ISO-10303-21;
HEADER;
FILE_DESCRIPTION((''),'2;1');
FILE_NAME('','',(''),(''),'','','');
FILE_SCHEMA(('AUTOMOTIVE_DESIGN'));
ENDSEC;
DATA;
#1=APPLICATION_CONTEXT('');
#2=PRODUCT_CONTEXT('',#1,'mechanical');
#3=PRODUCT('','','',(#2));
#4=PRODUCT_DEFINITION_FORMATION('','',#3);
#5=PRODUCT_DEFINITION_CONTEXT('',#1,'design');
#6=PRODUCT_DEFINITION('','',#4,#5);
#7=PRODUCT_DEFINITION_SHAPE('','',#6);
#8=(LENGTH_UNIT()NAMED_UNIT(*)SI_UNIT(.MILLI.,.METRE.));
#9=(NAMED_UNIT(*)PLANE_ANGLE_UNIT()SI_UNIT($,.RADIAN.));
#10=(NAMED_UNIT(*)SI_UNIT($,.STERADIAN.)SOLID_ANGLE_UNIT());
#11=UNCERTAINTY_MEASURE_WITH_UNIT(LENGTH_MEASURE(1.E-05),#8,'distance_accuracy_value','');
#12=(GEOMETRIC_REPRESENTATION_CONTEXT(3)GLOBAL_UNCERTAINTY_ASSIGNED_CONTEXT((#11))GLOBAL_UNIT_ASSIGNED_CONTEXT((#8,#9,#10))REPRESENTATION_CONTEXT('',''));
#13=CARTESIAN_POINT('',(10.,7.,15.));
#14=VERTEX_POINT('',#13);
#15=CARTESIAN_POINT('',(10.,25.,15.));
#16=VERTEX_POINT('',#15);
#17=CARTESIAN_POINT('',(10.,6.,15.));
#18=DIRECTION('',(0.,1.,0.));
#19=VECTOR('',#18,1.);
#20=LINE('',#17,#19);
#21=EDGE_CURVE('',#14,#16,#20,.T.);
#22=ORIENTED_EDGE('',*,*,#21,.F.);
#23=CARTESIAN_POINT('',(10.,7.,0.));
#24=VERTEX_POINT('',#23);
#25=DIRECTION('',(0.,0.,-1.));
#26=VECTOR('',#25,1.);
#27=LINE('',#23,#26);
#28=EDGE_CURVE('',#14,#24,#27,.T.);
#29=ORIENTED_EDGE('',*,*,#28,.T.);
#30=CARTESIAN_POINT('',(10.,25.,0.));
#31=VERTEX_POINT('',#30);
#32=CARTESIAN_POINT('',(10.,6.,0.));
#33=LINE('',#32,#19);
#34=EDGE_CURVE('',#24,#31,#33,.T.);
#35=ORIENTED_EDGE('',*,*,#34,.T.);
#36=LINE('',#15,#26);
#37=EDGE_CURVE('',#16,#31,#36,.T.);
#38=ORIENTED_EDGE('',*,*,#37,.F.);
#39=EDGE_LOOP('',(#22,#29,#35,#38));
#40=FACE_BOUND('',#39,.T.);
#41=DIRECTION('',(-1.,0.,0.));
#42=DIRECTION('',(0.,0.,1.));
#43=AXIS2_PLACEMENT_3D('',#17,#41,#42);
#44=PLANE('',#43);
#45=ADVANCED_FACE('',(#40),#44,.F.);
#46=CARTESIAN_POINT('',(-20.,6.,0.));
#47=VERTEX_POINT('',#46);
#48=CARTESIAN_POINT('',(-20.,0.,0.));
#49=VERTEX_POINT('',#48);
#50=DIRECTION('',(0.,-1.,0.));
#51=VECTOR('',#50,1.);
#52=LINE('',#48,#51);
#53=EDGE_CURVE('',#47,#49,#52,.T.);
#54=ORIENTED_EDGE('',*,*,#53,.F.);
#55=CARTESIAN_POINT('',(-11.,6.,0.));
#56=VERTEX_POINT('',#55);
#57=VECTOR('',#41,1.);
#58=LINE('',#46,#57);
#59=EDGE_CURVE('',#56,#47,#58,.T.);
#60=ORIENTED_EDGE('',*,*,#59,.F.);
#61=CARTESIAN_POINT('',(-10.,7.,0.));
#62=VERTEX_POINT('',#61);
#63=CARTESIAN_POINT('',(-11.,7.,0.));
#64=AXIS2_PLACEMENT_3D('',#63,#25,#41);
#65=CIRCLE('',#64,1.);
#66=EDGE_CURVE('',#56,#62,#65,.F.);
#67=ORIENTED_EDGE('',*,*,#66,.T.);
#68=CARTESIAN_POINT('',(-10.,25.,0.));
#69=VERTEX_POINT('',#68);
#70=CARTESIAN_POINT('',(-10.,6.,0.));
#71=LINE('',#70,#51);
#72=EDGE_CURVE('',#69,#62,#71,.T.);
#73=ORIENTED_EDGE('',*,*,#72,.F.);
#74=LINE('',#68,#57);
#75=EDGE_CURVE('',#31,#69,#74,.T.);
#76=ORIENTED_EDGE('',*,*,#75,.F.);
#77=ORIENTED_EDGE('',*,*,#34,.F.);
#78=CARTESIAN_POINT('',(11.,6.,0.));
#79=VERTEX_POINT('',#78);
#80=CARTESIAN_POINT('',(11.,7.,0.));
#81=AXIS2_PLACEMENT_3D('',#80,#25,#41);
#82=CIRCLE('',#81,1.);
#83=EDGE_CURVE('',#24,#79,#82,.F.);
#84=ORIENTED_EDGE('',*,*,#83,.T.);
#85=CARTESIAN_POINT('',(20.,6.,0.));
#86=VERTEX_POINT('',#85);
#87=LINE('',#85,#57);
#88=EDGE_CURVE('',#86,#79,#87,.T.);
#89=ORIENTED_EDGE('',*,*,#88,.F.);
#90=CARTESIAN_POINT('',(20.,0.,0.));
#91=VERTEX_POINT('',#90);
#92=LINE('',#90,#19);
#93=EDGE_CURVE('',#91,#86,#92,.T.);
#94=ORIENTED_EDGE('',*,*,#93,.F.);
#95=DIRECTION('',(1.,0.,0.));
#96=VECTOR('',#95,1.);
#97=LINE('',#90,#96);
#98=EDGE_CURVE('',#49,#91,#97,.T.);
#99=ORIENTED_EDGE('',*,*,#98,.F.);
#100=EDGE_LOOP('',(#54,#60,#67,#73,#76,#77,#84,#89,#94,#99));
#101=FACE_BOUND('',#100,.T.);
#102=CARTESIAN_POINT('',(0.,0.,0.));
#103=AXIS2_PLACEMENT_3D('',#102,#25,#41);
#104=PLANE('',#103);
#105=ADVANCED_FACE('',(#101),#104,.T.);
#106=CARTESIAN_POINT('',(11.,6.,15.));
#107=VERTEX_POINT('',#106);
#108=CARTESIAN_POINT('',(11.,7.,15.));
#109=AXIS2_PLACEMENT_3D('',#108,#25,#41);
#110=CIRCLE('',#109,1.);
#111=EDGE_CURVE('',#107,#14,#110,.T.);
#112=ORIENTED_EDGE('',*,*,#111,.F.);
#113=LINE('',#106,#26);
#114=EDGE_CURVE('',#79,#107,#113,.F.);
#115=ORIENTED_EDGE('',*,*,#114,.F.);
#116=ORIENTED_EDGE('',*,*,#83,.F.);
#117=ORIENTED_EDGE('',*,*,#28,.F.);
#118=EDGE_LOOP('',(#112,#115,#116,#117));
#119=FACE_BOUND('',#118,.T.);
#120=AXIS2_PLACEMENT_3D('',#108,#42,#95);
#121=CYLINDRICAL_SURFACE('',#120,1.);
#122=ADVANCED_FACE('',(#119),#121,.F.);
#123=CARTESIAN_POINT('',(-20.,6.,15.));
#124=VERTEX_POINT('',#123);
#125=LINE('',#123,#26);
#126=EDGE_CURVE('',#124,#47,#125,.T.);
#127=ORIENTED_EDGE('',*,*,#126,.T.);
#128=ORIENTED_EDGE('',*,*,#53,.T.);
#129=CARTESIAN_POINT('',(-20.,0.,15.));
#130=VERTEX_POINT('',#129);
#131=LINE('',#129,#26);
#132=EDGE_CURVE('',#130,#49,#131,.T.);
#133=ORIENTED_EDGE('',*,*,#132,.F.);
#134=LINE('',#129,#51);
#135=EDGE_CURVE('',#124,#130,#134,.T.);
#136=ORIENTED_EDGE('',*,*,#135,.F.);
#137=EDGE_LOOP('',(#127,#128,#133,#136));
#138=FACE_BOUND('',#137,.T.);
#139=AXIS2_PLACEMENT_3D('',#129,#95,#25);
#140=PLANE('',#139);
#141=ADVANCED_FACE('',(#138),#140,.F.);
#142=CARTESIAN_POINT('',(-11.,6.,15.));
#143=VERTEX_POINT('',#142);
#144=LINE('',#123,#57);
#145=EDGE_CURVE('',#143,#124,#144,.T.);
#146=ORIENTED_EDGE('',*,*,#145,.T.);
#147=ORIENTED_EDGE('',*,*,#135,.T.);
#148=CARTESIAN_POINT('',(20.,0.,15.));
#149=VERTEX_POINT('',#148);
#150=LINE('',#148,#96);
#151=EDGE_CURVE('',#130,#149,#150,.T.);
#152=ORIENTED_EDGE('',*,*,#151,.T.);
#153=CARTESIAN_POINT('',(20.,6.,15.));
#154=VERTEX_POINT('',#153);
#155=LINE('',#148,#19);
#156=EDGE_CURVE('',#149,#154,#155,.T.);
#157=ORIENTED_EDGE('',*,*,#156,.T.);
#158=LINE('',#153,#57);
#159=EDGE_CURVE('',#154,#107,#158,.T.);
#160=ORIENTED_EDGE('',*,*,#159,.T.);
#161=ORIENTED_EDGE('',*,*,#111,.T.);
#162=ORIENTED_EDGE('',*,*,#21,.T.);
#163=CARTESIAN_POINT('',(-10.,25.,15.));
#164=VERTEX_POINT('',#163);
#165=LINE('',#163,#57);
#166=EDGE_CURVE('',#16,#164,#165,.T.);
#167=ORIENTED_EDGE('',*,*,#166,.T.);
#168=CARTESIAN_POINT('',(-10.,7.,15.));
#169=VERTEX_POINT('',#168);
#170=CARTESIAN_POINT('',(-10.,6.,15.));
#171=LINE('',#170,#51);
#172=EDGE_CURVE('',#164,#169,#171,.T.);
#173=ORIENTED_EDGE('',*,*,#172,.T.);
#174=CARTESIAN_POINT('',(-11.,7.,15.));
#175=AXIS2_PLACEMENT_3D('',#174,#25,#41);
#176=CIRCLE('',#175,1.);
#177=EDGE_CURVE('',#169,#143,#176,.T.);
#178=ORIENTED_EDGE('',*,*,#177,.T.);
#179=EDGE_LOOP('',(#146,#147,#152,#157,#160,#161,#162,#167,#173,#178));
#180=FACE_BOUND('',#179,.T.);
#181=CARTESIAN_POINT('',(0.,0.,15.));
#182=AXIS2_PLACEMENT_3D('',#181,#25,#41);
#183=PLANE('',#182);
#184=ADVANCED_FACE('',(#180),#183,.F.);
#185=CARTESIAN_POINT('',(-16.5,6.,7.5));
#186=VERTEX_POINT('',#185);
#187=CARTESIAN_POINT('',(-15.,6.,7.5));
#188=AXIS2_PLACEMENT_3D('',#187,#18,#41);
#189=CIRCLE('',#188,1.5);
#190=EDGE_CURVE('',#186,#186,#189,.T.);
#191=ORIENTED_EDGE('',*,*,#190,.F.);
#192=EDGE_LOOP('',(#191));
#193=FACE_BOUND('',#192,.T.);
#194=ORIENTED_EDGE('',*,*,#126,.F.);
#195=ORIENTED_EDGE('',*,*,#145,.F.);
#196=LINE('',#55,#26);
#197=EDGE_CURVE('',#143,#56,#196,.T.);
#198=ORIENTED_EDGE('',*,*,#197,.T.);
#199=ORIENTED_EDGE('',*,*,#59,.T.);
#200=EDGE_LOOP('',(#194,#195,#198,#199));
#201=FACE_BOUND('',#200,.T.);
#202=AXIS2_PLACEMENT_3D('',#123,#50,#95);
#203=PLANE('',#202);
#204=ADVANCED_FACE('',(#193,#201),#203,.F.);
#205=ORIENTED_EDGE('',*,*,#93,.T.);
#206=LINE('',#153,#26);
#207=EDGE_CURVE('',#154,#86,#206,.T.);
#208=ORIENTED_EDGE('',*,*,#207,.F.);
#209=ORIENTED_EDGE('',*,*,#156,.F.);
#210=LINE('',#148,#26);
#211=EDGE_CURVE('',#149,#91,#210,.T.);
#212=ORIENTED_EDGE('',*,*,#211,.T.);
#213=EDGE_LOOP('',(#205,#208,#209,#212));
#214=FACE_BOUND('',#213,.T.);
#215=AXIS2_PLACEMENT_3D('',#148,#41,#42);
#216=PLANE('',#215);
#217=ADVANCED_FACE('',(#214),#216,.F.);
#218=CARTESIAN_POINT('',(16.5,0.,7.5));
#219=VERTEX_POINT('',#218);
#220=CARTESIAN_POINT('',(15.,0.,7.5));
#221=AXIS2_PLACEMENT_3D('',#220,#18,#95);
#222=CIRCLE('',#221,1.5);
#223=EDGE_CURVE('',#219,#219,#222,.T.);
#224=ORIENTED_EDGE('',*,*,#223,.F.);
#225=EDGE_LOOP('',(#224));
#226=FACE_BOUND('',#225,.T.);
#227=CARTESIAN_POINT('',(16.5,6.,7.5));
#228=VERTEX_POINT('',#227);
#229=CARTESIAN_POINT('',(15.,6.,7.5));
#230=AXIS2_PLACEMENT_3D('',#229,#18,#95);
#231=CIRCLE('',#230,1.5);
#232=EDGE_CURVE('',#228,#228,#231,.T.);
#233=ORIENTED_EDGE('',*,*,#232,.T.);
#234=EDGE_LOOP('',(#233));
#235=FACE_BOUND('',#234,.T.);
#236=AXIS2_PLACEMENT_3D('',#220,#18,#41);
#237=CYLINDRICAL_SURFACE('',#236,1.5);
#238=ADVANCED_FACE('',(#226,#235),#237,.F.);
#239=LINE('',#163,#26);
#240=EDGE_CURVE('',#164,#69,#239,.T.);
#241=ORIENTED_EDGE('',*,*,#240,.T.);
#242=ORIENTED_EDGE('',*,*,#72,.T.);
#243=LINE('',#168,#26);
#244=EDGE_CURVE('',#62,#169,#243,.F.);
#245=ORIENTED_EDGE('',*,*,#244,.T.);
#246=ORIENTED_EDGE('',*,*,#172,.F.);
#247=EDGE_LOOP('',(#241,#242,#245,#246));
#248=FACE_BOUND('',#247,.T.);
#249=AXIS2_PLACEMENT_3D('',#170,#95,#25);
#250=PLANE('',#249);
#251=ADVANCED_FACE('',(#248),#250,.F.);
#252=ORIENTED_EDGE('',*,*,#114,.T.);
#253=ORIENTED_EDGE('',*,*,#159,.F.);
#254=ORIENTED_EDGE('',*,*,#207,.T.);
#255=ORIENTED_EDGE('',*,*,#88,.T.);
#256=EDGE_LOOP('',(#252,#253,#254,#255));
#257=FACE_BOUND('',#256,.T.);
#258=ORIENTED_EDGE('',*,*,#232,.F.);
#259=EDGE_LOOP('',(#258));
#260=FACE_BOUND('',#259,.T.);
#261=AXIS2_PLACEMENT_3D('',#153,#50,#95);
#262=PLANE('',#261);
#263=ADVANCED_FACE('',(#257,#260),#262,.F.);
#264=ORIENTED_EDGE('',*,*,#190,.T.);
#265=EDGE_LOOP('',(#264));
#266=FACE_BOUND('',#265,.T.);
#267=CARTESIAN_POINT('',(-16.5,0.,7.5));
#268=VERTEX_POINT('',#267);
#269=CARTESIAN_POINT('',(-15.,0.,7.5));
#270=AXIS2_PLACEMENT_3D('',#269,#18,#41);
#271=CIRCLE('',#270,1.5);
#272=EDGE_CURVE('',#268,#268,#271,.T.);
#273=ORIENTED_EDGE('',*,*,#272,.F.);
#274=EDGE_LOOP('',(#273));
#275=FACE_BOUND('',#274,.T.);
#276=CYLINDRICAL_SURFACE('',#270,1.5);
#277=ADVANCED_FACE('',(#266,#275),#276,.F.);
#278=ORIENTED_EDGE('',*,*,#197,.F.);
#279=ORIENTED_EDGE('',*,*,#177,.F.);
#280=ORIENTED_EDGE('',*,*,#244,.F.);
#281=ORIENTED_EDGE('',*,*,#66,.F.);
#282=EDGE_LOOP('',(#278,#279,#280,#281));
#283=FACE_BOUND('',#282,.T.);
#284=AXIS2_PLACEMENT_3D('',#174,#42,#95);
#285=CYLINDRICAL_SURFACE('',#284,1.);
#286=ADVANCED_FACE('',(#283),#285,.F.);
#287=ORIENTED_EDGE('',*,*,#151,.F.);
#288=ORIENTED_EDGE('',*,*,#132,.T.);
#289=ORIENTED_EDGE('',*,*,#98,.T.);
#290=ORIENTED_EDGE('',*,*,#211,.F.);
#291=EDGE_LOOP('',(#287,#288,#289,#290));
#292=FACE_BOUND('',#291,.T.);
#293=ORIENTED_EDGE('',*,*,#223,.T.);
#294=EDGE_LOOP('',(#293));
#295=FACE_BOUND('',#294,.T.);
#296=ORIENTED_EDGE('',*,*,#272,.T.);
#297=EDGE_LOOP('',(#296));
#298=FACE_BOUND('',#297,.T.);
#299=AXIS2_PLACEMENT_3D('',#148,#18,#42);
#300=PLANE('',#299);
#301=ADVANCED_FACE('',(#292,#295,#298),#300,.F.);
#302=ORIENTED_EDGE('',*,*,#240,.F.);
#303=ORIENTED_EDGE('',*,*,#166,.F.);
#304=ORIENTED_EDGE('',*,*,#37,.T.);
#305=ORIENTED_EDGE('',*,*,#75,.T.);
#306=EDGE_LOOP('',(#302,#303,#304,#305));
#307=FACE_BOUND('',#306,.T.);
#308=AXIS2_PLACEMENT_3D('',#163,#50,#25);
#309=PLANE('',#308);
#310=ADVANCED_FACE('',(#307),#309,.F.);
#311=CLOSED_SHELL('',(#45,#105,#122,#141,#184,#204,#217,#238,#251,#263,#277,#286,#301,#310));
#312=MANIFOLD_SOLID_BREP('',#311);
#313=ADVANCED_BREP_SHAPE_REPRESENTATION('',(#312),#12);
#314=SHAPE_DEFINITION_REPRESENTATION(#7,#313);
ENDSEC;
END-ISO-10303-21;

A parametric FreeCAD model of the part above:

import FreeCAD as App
import Part
import Sketcher
from FreeCAD import Vector


def edges_at(feature, points):
    """Names of the edges that pass closest to the given points."""
    edges = feature.Shape.Edges
    near = lambda p: min(range(len(edges)), key=lambda i: edges[i].distToShape(Part.Vertex(*p))[0])
    return sorted({f"Edge{near(p) + 1}" for p in points})


def add_polygon(sketch, points):
    """Adds a closed chain of lines whose ends are joined by coincident constraints."""
    first, n = sketch.GeometryCount, len(points)
    for a, b in zip(points, points[1:] + points[:1]):
        sketch.addGeometry(Part.LineSegment(App.Vector(*a, 0), App.Vector(*b, 0)), False)
    for i in range(n):
        sketch.addConstraint(Sketcher.Constraint("Coincident", first + i, 2, first + (i + 1) % n, 1))

doc = App.newDocument("Part")
body = doc.addObject("PartDesign::Body", "Body")

# Sketch on XY plane
sketch1 = body.newObject("Sketcher::SketchObject", "Sketch")
sketch1.AttachmentSupport = (doc.getObject("XY_Plane"), [""])
sketch1.MapMode = "FlatFace"
add_polygon(sketch1, [(-20, 0), (20, 0), (20, 6), (10, 6), (10, 25), (-10, 25), (-10, 6), (-20, 6)])  # lines 0-7
sketch1.addConstraint([
    Sketcher.Constraint("Horizontal", 0),
    Sketcher.Constraint("Vertical", 1),
    Sketcher.Constraint("Horizontal", 2),
    Sketcher.Constraint("Vertical", 3),
    Sketcher.Constraint("Horizontal", 4),
    Sketcher.Constraint("Vertical", 5),
    Sketcher.Constraint("Horizontal", 6),
    Sketcher.Constraint("Vertical", 7),
    Sketcher.Constraint("Symmetric", 0, 2, 7, 2, -1, 1),
    Sketcher.Constraint("Symmetric", 2, 2, 5, 2, -2),
    Sketcher.Constraint("DistanceX", 0, 1, 0, 2, 40.0),
    Sketcher.Constraint("DistanceX", 2, 2, 2, 1, 10.0),
    Sketcher.Constraint("DistanceY", 1, 1, 1, 2, 6.0),
    Sketcher.Constraint("DistanceY", 3, 1, 3, 2, 19.0),
])
pad1 = body.newObject("PartDesign::Pad", "Pad")
pad1.Profile = sketch1
pad1.Length = 15

# Sketch on XZ plane
sketch2 = body.newObject("Sketcher::SketchObject", "Sketch001")
sketch2.AttachmentSupport = (doc.getObject("XZ_Plane"), [""])
sketch2.MapMode = "FlatFace"
sketch2.AttachmentOffset = App.Placement(Vector(0, 0, -6), App.Rotation())
sketch2.addGeometry([
    Part.Circle(Vector(-15, 7.5, 0), Vector(0, 0, 1), 1.5),
    Part.Circle(Vector(15, 7.5, 0), Vector(0, 0, 1), 1.5),
], False)
sketch2.addConstraint([
    Sketcher.Constraint("Equal", 0, 1),
    Sketcher.Constraint("Symmetric", 0, 3, 1, 3, -2),
    Sketcher.Constraint("Diameter", 0, 3.0),
    Sketcher.Constraint("DistanceX", 0, 3, -1, 1, 15.0),
    Sketcher.Constraint("DistanceY", -1, 1, 0, 3, 7.5),
])
pocket1 = body.newObject("PartDesign::Pocket", "Pocket")
pocket1.Profile = sketch2
pocket1.Type = "ThroughAll"
pocket1.Reversed = True
doc.recompute()

fillet = body.newObject("PartDesign::Fillet", "Fillet")
fillet.Base = (pocket1, edges_at(pocket1, [(-10, 6, 7.5), (10, 6, 7.5)]))
fillet.Radius = 1

doc.recompute()
